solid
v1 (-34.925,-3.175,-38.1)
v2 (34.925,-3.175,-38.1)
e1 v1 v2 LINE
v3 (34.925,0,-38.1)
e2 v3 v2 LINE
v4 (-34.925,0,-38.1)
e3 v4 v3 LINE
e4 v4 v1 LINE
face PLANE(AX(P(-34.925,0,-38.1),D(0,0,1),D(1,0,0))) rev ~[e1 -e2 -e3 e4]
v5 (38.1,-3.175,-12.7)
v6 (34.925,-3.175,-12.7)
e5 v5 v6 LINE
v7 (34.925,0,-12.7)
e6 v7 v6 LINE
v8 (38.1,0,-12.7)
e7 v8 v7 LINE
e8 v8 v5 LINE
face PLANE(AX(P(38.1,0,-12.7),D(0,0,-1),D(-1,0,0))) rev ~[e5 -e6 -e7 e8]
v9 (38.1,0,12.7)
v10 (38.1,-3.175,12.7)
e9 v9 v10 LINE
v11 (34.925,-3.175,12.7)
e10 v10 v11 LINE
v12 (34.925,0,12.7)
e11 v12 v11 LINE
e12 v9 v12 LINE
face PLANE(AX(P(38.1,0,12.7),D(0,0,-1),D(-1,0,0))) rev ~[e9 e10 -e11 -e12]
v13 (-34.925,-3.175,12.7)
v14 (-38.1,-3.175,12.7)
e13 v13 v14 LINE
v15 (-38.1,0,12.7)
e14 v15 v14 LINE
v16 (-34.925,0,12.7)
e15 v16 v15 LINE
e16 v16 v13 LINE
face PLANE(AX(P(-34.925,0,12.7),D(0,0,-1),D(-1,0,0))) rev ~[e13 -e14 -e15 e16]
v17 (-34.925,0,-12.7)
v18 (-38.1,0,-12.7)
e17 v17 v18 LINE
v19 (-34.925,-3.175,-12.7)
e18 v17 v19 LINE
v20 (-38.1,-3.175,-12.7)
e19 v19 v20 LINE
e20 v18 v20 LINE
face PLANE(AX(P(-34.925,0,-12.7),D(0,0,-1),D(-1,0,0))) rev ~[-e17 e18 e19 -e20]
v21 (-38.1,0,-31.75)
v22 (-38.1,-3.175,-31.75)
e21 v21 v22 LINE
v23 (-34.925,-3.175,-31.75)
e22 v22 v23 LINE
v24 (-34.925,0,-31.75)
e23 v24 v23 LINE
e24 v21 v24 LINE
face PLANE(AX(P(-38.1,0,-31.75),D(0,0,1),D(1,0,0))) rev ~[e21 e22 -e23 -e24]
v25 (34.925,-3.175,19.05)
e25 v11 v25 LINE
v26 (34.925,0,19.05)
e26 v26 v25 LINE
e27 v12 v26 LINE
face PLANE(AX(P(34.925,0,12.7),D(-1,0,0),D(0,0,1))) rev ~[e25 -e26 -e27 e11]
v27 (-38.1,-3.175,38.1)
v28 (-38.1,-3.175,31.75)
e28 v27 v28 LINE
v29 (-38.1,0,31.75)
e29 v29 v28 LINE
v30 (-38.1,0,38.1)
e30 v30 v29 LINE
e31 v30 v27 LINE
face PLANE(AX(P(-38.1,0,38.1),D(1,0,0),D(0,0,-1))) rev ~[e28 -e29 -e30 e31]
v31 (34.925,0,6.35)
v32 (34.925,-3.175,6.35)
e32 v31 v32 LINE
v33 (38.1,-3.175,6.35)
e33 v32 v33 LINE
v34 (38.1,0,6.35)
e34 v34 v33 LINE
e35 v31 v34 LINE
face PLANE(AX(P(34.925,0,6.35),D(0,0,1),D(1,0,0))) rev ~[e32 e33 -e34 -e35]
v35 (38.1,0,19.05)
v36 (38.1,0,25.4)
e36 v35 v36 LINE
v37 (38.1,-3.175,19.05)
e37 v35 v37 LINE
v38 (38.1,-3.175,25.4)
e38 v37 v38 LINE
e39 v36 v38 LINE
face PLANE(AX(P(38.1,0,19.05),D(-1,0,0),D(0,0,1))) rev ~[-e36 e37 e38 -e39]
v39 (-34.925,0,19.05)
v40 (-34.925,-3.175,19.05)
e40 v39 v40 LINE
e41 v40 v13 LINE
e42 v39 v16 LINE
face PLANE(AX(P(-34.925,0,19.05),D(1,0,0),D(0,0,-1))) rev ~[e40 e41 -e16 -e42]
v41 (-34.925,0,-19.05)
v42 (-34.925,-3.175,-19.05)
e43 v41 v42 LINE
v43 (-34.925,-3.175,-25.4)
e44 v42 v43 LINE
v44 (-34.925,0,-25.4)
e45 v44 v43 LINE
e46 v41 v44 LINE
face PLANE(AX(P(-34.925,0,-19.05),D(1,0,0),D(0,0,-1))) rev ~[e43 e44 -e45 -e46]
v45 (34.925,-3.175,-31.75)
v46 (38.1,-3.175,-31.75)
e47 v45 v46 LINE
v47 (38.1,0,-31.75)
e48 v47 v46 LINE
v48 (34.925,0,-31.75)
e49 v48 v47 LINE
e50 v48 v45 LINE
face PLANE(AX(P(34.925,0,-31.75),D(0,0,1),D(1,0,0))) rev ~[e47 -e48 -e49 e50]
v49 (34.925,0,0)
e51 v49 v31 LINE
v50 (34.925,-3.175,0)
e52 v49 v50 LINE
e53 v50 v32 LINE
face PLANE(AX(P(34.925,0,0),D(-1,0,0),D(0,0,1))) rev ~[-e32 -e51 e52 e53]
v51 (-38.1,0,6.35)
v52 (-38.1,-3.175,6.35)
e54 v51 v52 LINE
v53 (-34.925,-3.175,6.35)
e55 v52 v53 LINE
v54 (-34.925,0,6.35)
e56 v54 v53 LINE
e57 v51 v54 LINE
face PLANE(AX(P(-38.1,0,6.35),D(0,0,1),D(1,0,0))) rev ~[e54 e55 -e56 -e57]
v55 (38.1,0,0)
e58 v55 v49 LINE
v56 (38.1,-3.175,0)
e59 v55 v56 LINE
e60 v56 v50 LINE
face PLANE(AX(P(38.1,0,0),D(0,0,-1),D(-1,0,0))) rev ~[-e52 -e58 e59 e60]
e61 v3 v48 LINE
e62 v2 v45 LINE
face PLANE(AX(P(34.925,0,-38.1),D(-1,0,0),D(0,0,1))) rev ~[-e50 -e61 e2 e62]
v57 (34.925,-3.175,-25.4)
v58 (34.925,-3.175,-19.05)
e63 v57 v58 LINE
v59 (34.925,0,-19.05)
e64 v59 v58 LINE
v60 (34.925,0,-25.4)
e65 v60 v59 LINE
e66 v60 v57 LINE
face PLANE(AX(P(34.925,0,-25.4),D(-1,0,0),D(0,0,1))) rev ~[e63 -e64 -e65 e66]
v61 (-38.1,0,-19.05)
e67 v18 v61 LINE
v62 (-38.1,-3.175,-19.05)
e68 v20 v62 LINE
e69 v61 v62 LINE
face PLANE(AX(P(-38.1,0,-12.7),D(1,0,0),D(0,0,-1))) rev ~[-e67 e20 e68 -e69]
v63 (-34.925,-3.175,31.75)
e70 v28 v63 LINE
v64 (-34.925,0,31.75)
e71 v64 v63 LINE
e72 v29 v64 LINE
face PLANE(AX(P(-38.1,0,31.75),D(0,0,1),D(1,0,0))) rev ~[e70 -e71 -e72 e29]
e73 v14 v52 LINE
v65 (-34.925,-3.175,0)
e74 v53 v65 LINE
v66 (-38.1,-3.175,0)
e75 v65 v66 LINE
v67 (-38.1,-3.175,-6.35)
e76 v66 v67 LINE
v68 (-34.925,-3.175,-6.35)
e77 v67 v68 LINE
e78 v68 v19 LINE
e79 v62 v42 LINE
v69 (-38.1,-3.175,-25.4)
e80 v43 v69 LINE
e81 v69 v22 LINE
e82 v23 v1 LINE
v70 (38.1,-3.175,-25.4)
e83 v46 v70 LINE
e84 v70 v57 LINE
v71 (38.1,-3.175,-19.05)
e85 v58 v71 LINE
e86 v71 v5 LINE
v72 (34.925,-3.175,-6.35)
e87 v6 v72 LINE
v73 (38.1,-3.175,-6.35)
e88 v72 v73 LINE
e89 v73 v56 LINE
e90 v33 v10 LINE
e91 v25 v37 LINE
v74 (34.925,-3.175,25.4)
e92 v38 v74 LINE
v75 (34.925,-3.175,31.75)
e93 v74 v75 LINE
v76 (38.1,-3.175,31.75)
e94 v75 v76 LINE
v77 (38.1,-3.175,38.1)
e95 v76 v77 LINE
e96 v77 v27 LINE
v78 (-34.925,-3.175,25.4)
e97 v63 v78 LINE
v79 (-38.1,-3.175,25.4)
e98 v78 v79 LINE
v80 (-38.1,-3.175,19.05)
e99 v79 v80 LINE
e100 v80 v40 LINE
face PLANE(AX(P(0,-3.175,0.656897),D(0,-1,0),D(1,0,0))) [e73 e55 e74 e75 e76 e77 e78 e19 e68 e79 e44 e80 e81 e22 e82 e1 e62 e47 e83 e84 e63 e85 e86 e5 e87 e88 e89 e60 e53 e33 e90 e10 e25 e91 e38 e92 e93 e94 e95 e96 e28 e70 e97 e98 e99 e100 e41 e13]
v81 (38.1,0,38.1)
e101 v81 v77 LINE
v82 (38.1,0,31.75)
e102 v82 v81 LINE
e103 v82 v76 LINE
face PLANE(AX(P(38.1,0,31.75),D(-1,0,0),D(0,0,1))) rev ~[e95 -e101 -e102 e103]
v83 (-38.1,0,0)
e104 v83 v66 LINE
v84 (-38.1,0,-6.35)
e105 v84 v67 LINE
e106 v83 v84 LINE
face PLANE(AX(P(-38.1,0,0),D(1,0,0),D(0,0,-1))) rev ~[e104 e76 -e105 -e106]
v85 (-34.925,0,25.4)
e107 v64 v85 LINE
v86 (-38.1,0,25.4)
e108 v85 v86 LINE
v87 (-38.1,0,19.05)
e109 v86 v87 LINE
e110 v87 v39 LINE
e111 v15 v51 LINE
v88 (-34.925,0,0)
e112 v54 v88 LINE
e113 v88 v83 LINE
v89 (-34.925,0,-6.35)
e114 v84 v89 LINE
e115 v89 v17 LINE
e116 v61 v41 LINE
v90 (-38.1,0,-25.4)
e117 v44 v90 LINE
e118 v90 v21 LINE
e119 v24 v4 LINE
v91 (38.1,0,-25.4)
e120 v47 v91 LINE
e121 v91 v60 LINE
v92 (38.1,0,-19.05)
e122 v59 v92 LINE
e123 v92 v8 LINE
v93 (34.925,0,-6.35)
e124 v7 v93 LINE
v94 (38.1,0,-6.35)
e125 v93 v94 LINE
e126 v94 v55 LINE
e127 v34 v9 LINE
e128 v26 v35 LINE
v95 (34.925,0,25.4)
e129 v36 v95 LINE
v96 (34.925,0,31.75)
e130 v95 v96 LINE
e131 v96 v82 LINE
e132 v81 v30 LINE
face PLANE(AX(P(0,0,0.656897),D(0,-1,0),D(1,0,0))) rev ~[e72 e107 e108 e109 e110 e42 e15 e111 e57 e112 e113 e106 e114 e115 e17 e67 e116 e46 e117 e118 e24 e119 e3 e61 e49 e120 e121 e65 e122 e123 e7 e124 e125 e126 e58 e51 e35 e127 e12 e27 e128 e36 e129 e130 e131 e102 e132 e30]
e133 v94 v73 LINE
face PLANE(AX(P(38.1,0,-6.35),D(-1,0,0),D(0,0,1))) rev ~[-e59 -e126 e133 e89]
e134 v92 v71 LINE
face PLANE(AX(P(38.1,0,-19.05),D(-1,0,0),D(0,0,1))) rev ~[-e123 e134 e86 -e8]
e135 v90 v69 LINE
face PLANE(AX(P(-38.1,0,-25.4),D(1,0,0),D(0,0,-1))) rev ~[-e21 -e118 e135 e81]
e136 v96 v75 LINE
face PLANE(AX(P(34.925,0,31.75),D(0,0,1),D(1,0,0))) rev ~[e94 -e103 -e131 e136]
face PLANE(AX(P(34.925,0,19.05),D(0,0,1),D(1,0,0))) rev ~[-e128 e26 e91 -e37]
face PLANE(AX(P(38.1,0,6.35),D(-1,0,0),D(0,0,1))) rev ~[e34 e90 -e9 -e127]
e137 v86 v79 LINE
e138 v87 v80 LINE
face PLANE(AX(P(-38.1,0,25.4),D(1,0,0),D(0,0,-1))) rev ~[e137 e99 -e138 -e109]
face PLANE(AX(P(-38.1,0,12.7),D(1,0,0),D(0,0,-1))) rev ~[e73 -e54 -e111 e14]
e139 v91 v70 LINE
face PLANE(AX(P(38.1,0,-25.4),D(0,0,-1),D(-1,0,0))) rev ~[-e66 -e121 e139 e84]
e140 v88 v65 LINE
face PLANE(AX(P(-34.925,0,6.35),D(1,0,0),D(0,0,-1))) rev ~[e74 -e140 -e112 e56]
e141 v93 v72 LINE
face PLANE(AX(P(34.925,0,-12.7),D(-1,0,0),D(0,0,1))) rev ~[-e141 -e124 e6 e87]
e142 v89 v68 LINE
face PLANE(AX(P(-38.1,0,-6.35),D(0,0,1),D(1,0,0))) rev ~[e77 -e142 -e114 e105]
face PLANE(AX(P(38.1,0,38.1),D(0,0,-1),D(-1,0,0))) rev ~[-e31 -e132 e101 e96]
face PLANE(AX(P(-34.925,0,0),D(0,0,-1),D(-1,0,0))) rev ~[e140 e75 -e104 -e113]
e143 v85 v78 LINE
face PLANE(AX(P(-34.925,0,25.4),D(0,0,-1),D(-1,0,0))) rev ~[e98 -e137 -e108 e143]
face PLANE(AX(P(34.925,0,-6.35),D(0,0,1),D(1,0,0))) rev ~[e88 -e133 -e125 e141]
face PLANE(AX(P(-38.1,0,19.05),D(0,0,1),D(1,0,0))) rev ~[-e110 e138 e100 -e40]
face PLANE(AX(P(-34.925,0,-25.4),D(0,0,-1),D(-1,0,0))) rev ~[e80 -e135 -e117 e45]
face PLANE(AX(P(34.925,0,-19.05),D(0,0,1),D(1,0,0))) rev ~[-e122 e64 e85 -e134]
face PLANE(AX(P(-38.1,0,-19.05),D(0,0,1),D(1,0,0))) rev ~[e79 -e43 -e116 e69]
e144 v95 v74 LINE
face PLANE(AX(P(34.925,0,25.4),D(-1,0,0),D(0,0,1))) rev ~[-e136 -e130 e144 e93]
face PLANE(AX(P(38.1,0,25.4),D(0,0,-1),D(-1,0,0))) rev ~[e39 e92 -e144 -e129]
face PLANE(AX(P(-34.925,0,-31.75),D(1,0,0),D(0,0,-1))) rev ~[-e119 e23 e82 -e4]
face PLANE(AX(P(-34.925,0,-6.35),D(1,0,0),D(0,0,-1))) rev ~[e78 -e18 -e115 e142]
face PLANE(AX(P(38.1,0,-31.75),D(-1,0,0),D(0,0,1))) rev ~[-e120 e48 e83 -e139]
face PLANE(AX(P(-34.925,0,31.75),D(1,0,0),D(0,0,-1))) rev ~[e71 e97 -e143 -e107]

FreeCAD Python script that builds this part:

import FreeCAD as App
import Part
import Sketcher

V = App.Vector
Q = App.Units.Quantity


def add_polygon(sketch, points):
    """Adds a closed chain of lines whose ends are joined by coincident constraints."""
    first, n = sketch.GeometryCount, len(points)
    for a, b in zip(points, points[1:] + points[:1]):
        sketch.addGeometry(Part.LineSegment(App.Vector(*a, 0), App.Vector(*b, 0)), False)
    for i in range(n):
        sketch.addConstraint(Sketcher.Constraint("Coincident", first + i, 2, first + (i + 1) % n, 1))

doc = App.newDocument("Part")
body = doc.addObject("PartDesign::Body", "Body")

# Sketch on XZ plane
sketch1 = body.newObject("Sketcher::SketchObject", "Sketch")
sketch1.AttachmentSupport = (doc.getObject("XZ_Plane"), [""])
sketch1.MapMode = "FlatFace"
add_polygon(sketch1, [(38.1, 38.1), (-38.1, 38.1), (-38.1, 31.8), (-34.9, 31.8), (-34.9, 25.4), (-38.1, 25.4), (-38.1, 19.1), (-34.9, 19.1), (-34.9, 12.7), (-38.1, 12.7), (-38.1, 6.3), (-34.9, 6.3), (-34.9, 0), (-38.1, 0), (-38.1, -6.3), (-34.9, -6.3), (-34.9, -12.7), (-38.1, -12.7), (-38.1, -19.1), (-34.9, -19.1), (-34.9, -25.4), (-38.1, -25.4), (-38.1, -31.8), (-34.9, -31.8), (-34.9, -38.1), (34.9, -38.1), (34.9, -31.8), (38.1, -31.8), (38.1, -25.4), (34.9, -25.4), (34.9, -19.1), (38.1, -19.1), (38.1, -12.7), (34.9, -12.7), (34.9, -6.3), (38.1, -6.3), (38.1, 0), (34.9, 0), (34.9, 6.3), (38.1, 6.3), (38.1, 12.7), (34.9, 12.7), (34.9, 19.1), (38.1, 19.1), (38.1, 25.4), (34.9, 25.4), (34.9, 31.8), (38.1, 31.8)])  # lines 0-47
sketch1.addConstraint([
    Sketcher.Constraint("Horizontal", 0),
    Sketcher.Constraint("Vertical", 1),
    Sketcher.Constraint("Horizontal", 2),
    Sketcher.Constraint("Vertical", 3),
    Sketcher.Constraint("Horizontal", 4),
    Sketcher.Constraint("Vertical", 5),
    Sketcher.Constraint("Horizontal", 6),
    Sketcher.Constraint("Vertical", 7),
    Sketcher.Constraint("Horizontal", 8),
    Sketcher.Constraint("Vertical", 9),
    Sketcher.Constraint("Horizontal", 10),
    Sketcher.Constraint("Vertical", 11),
    Sketcher.Constraint("Horizontal", 12),
    Sketcher.Constraint("Vertical", 13),
    Sketcher.Constraint("Horizontal", 14),
    Sketcher.Constraint("Vertical", 15),
    Sketcher.Constraint("Horizontal", 16),
    Sketcher.Constraint("Vertical", 17),
    Sketcher.Constraint("Horizontal", 18),
    Sketcher.Constraint("Vertical", 19),
    Sketcher.Constraint("Horizontal", 20),
    Sketcher.Constraint("Vertical", 21),
    Sketcher.Constraint("Horizontal", 22),
    Sketcher.Constraint("Vertical", 23),
    Sketcher.Constraint("Horizontal", 24),
    Sketcher.Constraint("Vertical", 25),
    Sketcher.Constraint("Horizontal", 26),
    Sketcher.Constraint("Vertical", 27),
    Sketcher.Constraint("Horizontal", 28),
    Sketcher.Constraint("Vertical", 29),
    Sketcher.Constraint("Horizontal", 30),
    Sketcher.Constraint("Vertical", 31),
    Sketcher.Constraint("Horizontal", 32),
    Sketcher.Constraint("Vertical", 33),
    Sketcher.Constraint("Horizontal", 34),
    Sketcher.Constraint("Vertical", 35),
    Sketcher.Constraint("Horizontal", 36),
    Sketcher.Constraint("Vertical", 37),
    Sketcher.Constraint("Horizontal", 38),
    Sketcher.Constraint("Vertical", 39),
    Sketcher.Constraint("Horizontal", 40),
    Sketcher.Constraint("Vertical", 41),
    Sketcher.Constraint("Horizontal", 42),
    Sketcher.Constraint("Vertical", 43),
    Sketcher.Constraint("Horizontal", 44),
    Sketcher.Constraint("Vertical", 45),
    Sketcher.Constraint("Horizontal", 46),
    Sketcher.Constraint("Vertical", 47),
    Sketcher.Constraint("Symmetric", 2, 2, 25, 2, -1, 1),
    Sketcher.Constraint("Symmetric", 4, 2, 27, 2, -1, 1),
    Sketcher.Constraint("Symmetric", 6, 2, 29, 2, -1, 1),
    Sketcher.Constraint("Symmetric", 8, 2, 31, 2, -1, 1),
    Sketcher.Constraint("Symmetric", 10, 2, 33, 2, -1, 1),
    Sketcher.Constraint("Symmetric", 12, 2, 35, 2, -1, 1),
    Sketcher.Constraint("Symmetric", 14, 2, 37, 2, -1, 1),
    Sketcher.Constraint("Symmetric", 16, 2, 39, 2, -1, 1),
    Sketcher.Constraint("Symmetric", 18, 2, 41, 2, -1, 1),
    Sketcher.Constraint("Symmetric", 20, 2, 43, 2, -1, 1),
    Sketcher.Constraint("Symmetric", 22, 2, 45, 2, -1, 1),
    Sketcher.Constraint("Symmetric", 22, 2, 25, 2, -2),
    Sketcher.Constraint("Symmetric", 20, 2, 27, 2, -2),
    Sketcher.Constraint("Symmetric", 18, 2, 29, 2, -2),
    Sketcher.Constraint("Symmetric", 16, 2, 31, 2, -2),
    Sketcher.Constraint("Symmetric", 14, 2, 33, 2, -2),
    Sketcher.Constraint("PointOnObject", 11, 2, -1),
    Sketcher.Constraint("Vertical", 1, 2, 4, 2),
    Sketcher.Constraint("Vertical", 3, 2, 6, 2),
    Sketcher.Constraint("Vertical", 5, 2, 8, 2),
    Sketcher.Constraint("Vertical", 7, 2, 10, 2),
    Sketcher.Constraint("Vertical", 9, 2, 12, 2),
    Sketcher.Constraint("Vertical", 43, 2, 46, 2),
    Sketcher.Constraint("Equal", 1, 3),
    Sketcher.Constraint("Equal", 3, 5),
    Sketcher.Constraint("Equal", 5, 7),
    Sketcher.Constraint("Equal", 7, 9),
    Sketcher.Constraint("Equal", 9, 11),
    Sketcher.Constraint("Equal", 21, 23),
    Sketcher.Constraint("DistanceX", 0, 2, 0, 1, Q("3 in")),
    Sketcher.Constraint("DistanceY", -1, 1, 3, 2, Q("1 in")),
    Sketcher.Constraint("DistanceX", 24, 1, 24, 2, Q("2.75 in")),
])
pad1 = body.newObject("PartDesign::Pad", "Pad")
pad1.Profile = sketch1
pad1.Length = Q("0.125 in")

doc.recompute()
